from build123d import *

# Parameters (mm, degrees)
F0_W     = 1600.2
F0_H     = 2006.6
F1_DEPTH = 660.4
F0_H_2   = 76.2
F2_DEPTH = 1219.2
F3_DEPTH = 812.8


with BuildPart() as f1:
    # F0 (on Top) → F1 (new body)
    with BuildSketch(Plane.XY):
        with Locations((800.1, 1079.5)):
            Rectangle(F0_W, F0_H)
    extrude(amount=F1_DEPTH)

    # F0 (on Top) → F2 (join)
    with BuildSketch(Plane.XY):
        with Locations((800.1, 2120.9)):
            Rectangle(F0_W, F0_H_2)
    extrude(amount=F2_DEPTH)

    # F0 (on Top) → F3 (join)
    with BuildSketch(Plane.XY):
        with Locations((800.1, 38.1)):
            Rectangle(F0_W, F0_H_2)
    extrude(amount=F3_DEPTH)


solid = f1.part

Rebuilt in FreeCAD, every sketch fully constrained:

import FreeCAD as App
import Part
import Sketcher

V = App.Vector
Q = App.Units.Quantity

doc = App.newDocument("Part")
params = doc.addObject("Spreadsheet::Sheet", "Params")
for row, (alias, value) in enumerate([
    ("sketch1_width", "63 in"),
    ("sketch1_height", "79 in"),
    ("pad1_length", "26 in"),
    ("sketch2_width", "63 in"),
    ("sketch2_height", "3 in"),
    ("pad2_length", "48 in"),
    ("sketch3_width", "63 in"),
    ("sketch3_height", "3 in"),
    ("pad3_length", "32 in"),
], start=1):
    params.set(f"A{row}", alias)
    params.set(f"B{row}", "=" + value)
    params.setAlias(f"B{row}", alias)

body = doc.addObject("PartDesign::Body", "Body")

# Sketch on XY plane
sketch1 = doc.addObject("Sketcher::SketchObject", "Sketch")
body.addObject(sketch1)
sketch1.AttachmentSupport = (doc.XY_Plane, [""])
sketch1.MapMode = "FlatFace"
sketch1.addGeometry([
    Part.LineSegment(V(0, 2083, 0), V(0, 76, 0)),
    Part.LineSegment(V(0, 76, 0), V(1600, 76, 0)),
    Part.LineSegment(V(1600, 76, 0), V(1600, 2083, 0)),
    Part.LineSegment(V(1600, 2083, 0), V(0, 2083, 0)),
], False)
sketch1.addConstraint([
    Sketcher.Constraint("Coincident", 0, 2, 1, 1),
    Sketcher.Constraint("Coincident", 1, 2, 2, 1),
    Sketcher.Constraint("Coincident", 2, 2, 3, 1),
    Sketcher.Constraint("Coincident", 3, 2, 0, 1),
    Sketcher.Constraint("Vertical", 0),
    Sketcher.Constraint("Horizontal", 1),
    Sketcher.Constraint("Vertical", 2),
    Sketcher.Constraint("Horizontal", 3),
    Sketcher.Constraint("PointOnObject", 0, 2, -2),
    Sketcher.Constraint("DistanceX", 1, 1, 1, 2, Q("63 in")),
    Sketcher.Constraint("DistanceY", 0, 2, 0, 1, Q("79 in")),
    Sketcher.Constraint("DistanceY", -1, 1, 0, 2, Q("3 in")),
])
sketch1.setExpression("Constraints[9]", "Params.sketch1_width")
sketch1.setExpression("Constraints[10]", "Params.sketch1_height")
pad1 = doc.addObject("PartDesign::Pad", "Pad")
body.addObject(pad1)
pad1.Profile = sketch1
pad1.setExpression("Length", "Params.pad1_length")

# Sketch on XY plane
sketch2 = doc.addObject("Sketcher::SketchObject", "Sketch001")
body.addObject(sketch2)
sketch2.AttachmentSupport = (doc.XY_Plane, [""])
sketch2.MapMode = "FlatFace"
sketch2.addGeometry([
    Part.LineSegment(V(0, 2159, 0), V(0, 2083, 0)),
    Part.LineSegment(V(0, 2083, 0), V(1600, 2083, 0)),
    Part.LineSegment(V(1600, 2083, 0), V(1600, 2159, 0)),
    Part.LineSegment(V(1600, 2159, 0), V(0, 2159, 0)),
], False)
sketch2.addConstraint([
    Sketcher.Constraint("Coincident", 0, 2, 1, 1),
    Sketcher.Constraint("Coincident", 1, 2, 2, 1),
    Sketcher.Constraint("Coincident", 2, 2, 3, 1),
    Sketcher.Constraint("Coincident", 3, 2, 0, 1),
    Sketcher.Constraint("Vertical", 0),
    Sketcher.Constraint("Horizontal", 1),
    Sketcher.Constraint("Vertical", 2),
    Sketcher.Constraint("Horizontal", 3),
    Sketcher.Constraint("PointOnObject", 0, 2, -2),
    Sketcher.Constraint("DistanceX", 1, 1, 1, 2, Q("63 in")),
    Sketcher.Constraint("DistanceY", 0, 2, 0, 1, Q("3 in")),
    Sketcher.Constraint("DistanceY", -1, 1, 0, 2, Q("82 in")),
])
sketch2.setExpression("Constraints[9]", "Params.sketch2_width")
sketch2.setExpression("Constraints[10]", "Params.sketch2_height")
pad2 = doc.addObject("PartDesign::Pad", "Pad001")
body.addObject(pad2)
pad2.Profile = sketch2
pad2.setExpression("Length", "Params.pad2_length")

# Sketch on XY plane
sketch3 = doc.addObject("Sketcher::SketchObject", "Sketch002")
body.addObject(sketch3)
sketch3.AttachmentSupport = (doc.XY_Plane, [""])
sketch3.MapMode = "FlatFace"
sketch3.addGeometry([
    Part.LineSegment(V(0, 76, 0), V(0, 0, 0)),
    Part.LineSegment(V(0, 0, 0), V(1600, 0, 0)),
    Part.LineSegment(V(1600, 0, 0), V(1600, 76, 0)),
    Part.LineSegment(V(1600, 76, 0), V(0, 76, 0)),
], False)
sketch3.addConstraint([
    Sketcher.Constraint("Coincident", 0, 2, 1, 1),
    Sketcher.Constraint("Coincident", 1, 2, 2, 1),
    Sketcher.Constraint("Coincident", 2, 2, 3, 1),
    Sketcher.Constraint("Coincident", 3, 2, 0, 1),
    Sketcher.Constraint("Vertical", 0),
    Sketcher.Constraint("Horizontal", 1),
    Sketcher.Constraint("Vertical", 2),
    Sketcher.Constraint("Horizontal", 3),
    Sketcher.Constraint("Coincident", 0, 2, -1, 1),
    Sketcher.Constraint("DistanceX", 1, 1, 1, 2, Q("63 in")),
    Sketcher.Constraint("DistanceY", 0, 2, 0, 1, Q("3 in")),
])
sketch3.setExpression("Constraints[9]", "Params.sketch3_width")
sketch3.setExpression("Constraints[10]", "Params.sketch3_height")
pad3 = doc.addObject("PartDesign::Pad", "Pad002")
body.addObject(pad3)
pad3.Profile = sketch3
pad3.setExpression("Length", "Params.pad3_length")

doc.recompute()
